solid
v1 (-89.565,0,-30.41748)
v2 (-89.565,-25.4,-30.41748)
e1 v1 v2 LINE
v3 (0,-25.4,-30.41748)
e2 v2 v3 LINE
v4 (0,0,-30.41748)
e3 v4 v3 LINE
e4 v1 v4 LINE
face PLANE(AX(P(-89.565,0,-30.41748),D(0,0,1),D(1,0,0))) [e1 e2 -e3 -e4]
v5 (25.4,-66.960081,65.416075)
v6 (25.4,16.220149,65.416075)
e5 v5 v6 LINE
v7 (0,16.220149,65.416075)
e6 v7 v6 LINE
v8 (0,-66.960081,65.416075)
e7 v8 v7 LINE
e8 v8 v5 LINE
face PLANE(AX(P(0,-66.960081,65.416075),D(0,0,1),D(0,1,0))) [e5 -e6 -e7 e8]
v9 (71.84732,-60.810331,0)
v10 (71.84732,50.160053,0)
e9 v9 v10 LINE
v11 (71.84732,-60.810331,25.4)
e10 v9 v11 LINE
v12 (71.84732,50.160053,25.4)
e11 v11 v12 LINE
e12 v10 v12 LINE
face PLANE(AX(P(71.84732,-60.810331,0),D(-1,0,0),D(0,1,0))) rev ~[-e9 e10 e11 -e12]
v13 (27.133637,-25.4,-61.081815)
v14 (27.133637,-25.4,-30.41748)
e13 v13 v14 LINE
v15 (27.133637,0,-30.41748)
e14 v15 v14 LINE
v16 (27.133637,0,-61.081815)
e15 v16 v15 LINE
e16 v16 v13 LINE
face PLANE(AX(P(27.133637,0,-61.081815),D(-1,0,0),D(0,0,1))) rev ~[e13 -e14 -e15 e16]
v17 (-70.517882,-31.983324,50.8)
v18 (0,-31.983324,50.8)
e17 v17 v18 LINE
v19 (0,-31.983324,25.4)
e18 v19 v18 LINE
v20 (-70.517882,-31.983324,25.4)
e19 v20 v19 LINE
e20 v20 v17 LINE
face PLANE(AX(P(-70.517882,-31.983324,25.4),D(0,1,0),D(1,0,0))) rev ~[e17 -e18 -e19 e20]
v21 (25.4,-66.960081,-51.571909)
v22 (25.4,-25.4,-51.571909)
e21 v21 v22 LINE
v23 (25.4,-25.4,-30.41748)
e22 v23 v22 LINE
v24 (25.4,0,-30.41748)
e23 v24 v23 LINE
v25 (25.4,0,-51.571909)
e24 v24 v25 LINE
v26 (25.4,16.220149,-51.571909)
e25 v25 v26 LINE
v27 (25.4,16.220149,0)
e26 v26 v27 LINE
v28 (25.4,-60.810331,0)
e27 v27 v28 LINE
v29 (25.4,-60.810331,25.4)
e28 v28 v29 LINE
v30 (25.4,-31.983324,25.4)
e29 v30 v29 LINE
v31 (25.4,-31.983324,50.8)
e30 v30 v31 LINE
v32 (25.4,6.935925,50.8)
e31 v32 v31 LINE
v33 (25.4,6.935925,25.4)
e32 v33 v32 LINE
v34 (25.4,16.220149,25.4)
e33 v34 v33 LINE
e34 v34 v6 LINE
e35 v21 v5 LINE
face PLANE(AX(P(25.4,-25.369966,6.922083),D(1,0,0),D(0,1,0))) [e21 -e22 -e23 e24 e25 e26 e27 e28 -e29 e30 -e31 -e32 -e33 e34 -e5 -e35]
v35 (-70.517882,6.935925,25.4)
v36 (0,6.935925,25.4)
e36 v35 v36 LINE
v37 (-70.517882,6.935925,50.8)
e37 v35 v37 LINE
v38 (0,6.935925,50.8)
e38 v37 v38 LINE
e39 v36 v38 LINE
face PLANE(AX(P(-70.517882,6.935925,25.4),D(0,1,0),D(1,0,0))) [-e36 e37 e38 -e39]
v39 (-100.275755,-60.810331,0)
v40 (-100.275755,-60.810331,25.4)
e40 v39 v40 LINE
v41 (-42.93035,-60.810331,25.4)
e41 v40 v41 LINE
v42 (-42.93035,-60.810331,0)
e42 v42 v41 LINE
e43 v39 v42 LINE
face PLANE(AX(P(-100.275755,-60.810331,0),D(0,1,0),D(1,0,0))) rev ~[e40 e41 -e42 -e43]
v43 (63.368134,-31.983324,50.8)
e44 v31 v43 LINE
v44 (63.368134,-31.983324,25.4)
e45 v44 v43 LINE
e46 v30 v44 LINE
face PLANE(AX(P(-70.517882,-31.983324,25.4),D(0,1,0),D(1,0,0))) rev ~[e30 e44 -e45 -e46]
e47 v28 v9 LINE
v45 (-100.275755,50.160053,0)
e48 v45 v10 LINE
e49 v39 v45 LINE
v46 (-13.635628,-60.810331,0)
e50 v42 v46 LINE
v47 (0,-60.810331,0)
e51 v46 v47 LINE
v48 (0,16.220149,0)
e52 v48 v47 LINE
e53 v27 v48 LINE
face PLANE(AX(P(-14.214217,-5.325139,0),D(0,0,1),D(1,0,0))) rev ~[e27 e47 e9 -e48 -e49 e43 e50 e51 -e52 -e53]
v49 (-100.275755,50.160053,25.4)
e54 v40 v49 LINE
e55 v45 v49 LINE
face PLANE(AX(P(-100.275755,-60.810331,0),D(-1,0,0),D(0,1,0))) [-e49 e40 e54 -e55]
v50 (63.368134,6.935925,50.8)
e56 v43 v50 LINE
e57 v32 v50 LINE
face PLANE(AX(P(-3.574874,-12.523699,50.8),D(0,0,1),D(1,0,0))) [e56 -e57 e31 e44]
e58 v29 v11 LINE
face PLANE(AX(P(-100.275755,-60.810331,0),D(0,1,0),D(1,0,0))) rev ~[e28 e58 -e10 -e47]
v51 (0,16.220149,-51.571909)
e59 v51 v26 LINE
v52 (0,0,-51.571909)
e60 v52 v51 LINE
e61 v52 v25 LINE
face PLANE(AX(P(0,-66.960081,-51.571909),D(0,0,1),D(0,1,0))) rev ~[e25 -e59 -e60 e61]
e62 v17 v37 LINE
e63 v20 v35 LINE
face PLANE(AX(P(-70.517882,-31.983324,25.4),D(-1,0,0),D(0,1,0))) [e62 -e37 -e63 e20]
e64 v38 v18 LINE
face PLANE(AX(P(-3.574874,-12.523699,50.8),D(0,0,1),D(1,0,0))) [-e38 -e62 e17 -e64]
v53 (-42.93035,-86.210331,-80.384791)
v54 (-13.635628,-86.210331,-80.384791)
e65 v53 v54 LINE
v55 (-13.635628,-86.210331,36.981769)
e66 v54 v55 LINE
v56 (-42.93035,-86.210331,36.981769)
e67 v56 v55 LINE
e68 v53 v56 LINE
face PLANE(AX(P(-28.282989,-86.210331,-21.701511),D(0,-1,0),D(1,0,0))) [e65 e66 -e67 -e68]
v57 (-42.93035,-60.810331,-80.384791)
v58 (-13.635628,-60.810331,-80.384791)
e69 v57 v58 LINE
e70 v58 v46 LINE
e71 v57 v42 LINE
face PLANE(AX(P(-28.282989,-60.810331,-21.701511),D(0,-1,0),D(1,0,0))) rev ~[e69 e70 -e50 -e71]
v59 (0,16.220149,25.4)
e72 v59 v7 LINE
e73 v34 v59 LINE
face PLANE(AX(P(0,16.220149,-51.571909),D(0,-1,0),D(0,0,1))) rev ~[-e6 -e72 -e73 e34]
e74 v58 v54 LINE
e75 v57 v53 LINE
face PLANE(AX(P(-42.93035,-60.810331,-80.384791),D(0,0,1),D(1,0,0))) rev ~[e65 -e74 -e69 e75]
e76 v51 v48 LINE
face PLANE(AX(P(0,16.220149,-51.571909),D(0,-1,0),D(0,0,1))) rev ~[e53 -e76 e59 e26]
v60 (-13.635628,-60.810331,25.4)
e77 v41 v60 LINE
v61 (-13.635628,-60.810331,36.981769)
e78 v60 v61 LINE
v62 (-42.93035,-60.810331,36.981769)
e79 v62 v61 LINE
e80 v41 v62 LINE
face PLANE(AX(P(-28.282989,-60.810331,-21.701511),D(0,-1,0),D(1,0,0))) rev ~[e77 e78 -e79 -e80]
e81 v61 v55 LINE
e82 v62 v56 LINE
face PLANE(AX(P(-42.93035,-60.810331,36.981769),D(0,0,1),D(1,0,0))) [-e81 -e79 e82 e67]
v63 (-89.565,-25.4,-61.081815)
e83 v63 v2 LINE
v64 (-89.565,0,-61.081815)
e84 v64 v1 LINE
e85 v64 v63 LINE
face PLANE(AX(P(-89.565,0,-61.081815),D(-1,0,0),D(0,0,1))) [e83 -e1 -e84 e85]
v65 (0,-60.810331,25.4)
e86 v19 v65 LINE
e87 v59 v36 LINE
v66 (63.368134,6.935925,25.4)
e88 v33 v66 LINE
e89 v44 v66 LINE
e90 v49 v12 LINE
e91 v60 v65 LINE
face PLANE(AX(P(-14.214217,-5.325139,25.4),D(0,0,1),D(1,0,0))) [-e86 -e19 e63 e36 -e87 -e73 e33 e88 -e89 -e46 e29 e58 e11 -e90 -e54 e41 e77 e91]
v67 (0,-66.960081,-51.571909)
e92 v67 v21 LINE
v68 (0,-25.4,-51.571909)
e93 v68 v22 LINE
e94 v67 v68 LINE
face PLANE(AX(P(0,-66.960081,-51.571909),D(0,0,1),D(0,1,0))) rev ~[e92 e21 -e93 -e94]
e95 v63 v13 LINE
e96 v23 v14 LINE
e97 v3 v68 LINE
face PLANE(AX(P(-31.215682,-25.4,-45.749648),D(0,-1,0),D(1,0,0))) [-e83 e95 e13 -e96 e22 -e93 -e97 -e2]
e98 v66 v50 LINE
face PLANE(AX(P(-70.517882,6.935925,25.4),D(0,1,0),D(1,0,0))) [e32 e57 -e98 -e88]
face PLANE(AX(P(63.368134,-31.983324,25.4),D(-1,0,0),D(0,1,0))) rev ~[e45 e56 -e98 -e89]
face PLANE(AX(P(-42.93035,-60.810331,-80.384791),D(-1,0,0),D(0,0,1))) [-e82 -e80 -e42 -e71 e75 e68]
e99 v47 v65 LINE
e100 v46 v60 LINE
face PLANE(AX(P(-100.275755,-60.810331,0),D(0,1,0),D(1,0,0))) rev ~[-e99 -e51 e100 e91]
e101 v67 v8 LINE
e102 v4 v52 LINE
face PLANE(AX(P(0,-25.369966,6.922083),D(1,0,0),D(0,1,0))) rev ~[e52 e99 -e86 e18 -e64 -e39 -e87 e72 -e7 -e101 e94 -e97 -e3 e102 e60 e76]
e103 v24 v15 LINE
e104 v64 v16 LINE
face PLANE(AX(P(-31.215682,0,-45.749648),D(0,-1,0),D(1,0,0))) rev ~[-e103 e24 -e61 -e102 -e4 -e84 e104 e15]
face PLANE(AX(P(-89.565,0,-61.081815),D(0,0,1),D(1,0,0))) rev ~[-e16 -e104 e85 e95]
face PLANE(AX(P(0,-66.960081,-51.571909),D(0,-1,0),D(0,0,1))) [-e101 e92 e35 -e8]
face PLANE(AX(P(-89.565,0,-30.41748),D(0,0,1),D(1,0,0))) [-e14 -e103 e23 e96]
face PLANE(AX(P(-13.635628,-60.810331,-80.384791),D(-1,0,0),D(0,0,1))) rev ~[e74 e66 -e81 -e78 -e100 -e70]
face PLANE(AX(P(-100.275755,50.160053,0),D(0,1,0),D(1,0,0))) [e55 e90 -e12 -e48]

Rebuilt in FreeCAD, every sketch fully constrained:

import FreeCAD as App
import Part
import Sketcher

V = App.Vector
Q = App.Units.Quantity

doc = App.newDocument("Part")
body = doc.addObject("PartDesign::Body", "Body")

# Sketch on YZ plane
sketch1 = doc.addObject("Sketcher::SketchObject", "Sketch")
body.addObject(sketch1)
sketch1.AttachmentSupport = (doc.YZ_Plane, [""])
sketch1.MapMode = "FlatFace"
sketch1.addGeometry([
    Part.LineSegment(V(-66.960081, 65.416075, 0), V(-66.960081, -51.571909, 0)),
    Part.LineSegment(V(-66.960081, -51.571909, 0), V(16.220149, -51.571909, 0)),
    Part.LineSegment(V(16.220149, -51.571909, 0), V(16.220149, 65.416075, 0)),
    Part.LineSegment(V(16.220149, 65.416075, 0), V(-66.960081, 65.416075, 0)),
], False)
sketch1.addConstraint([
    Sketcher.Constraint("Coincident", 0, 2, 1, 1),
    Sketcher.Constraint("Coincident", 1, 2, 2, 1),
    Sketcher.Constraint("Coincident", 2, 2, 3, 1),
    Sketcher.Constraint("Coincident", 3, 2, 0, 1),
    Sketcher.Constraint("Vertical", 0),
    Sketcher.Constraint("Horizontal", 1),
    Sketcher.Constraint("Vertical", 2),
    Sketcher.Constraint("Horizontal", 3),
    Sketcher.Constraint("DistanceX", 1, 1, 1, 2, 83.18023),
    Sketcher.Constraint("DistanceY", 0, 2, 0, 1, 116.987984),
    Sketcher.Constraint("DistanceX", 0, 2, -1, 1, 66.960081),
    Sketcher.Constraint("DistanceY", 0, 2, -1, 1, 51.571909),
])
pad1 = doc.addObject("PartDesign::Pad", "Pad")
body.addObject(pad1)
pad1.Profile = sketch1
pad1.Length = Q("1 in")

# Sketch on XY plane
sketch2 = doc.addObject("Sketcher::SketchObject", "Sketch001")
body.addObject(sketch2)
sketch2.AttachmentSupport = (doc.XY_Plane, [""])
sketch2.MapMode = "FlatFace"
sketch2.addGeometry([
    Part.LineSegment(V(-100.275755, 50.160053, 0), V(-100.275755, -60.810331, 0)),
    Part.LineSegment(V(-100.275755, -60.810331, 0), V(71.84732, -60.810331, 0)),
    Part.LineSegment(V(71.84732, -60.810331, 0), V(71.84732, 50.160053, 0)),
    Part.LineSegment(V(71.84732, 50.160053, 0), V(-100.275755, 50.160053, 0)),
], False)
sketch2.addConstraint([
    Sketcher.Constraint("Coincident", 0, 2, 1, 1),
    Sketcher.Constraint("Coincident", 1, 2, 2, 1),
    Sketcher.Constraint("Coincident", 2, 2, 3, 1),
    Sketcher.Constraint("Coincident", 3, 2, 0, 1),
    Sketcher.Constraint("Vertical", 0),
    Sketcher.Constraint("Horizontal", 1),
    Sketcher.Constraint("Vertical", 2),
    Sketcher.Constraint("Horizontal", 3),
    Sketcher.Constraint("DistanceX", 1, 1, 1, 2, 172.123075),
    Sketcher.Constraint("DistanceY", 0, 2, 0, 1, 110.970385),
    Sketcher.Constraint("DistanceY", 0, 2, -1, 1, 60.810331),
    Sketcher.Constraint("DistanceX", -1, 1, 1, 2, 71.84732),
])
pad2 = doc.addObject("PartDesign::Pad", "Pad001")
body.addObject(pad2)
pad2.Profile = sketch2
pad2.Length = Q("1 in")

# Sketch on XZ plane
sketch3 = doc.addObject("Sketcher::SketchObject", "Sketch002")
body.addObject(sketch3)
sketch3.AttachmentSupport = (doc.XZ_Plane, [""])
sketch3.MapMode = "FlatFace"
sketch3.addGeometry([
    Part.LineSegment(V(-89.565, -30.41748, 0), V(-89.565, -61.081815, 0)),
    Part.LineSegment(V(-89.565, -61.081815, 0), V(27.133637, -61.081815, 0)),
    Part.LineSegment(V(27.133637, -61.081815, 0), V(27.133637, -30.41748, 0)),
    Part.LineSegment(V(27.133637, -30.41748, 0), V(-89.565, -30.41748, 0)),
], False)
sketch3.addConstraint([
    Sketcher.Constraint("Coincident", 0, 2, 1, 1),
    Sketcher.Constraint("Coincident", 1, 2, 2, 1),
    Sketcher.Constraint("Coincident", 2, 2, 3, 1),
    Sketcher.Constraint("Coincident", 3, 2, 0, 1),
    Sketcher.Constraint("Vertical", 0),
    Sketcher.Constraint("Horizontal", 1),
    Sketcher.Constraint("Vertical", 2),
    Sketcher.Constraint("Horizontal", 3),
    Sketcher.Constraint("DistanceX", 0, 2, -1, 1, 89.565),
    Sketcher.Constraint("DistanceX", 1, 1, 1, 2, 116.698637),
    Sketcher.Constraint("DistanceY", 0, 2, 0, 1, 30.664335),
    Sketcher.Constraint("DistanceY", 2, 2, -1, 1, 30.41748),
])
pad3 = doc.addObject("PartDesign::Pad", "Pad002")
body.addObject(pad3)
pad3.Profile = sketch3
pad3.Length = Q("1 in")

# Sketch on XY plane
sketch4 = doc.addObject("Sketcher::SketchObject", "Sketch003")
body.addObject(sketch4)
sketch4.AttachmentSupport = (doc.XY_Plane, [""])
sketch4.MapMode = "FlatFace"
sketch4.AttachmentOffset = App.Placement(V(0, 0, 1 * 25.4), App.Rotation())
sketch4.addGeometry([
    Part.LineSegment(V(-70.517882, 6.935925, 0), V(-70.517882, -31.983324, 0)),
    Part.LineSegment(V(-70.517882, -31.983324, 0), V(63.368134, -31.983324, 0)),
    Part.LineSegment(V(63.368134, -31.983324, 0), V(63.368134, 6.935925, 0)),
    Part.LineSegment(V(63.368134, 6.935925, 0), V(-70.517882, 6.935925, 0)),
], False)
sketch4.addConstraint([
    Sketcher.Constraint("Coincident", 0, 2, 1, 1),
    Sketcher.Constraint("Coincident", 1, 2, 2, 1),
    Sketcher.Constraint("Coincident", 2, 2, 3, 1),
    Sketcher.Constraint("Coincident", 3, 2, 0, 1),
    Sketcher.Constraint("Vertical", 0),
    Sketcher.Constraint("Horizontal", 1),
    Sketcher.Constraint("Vertical", 2),
    Sketcher.Constraint("Horizontal", 3),
    Sketcher.Constraint("DistanceY", 0, 2, 0, 1, 38.919249),
    Sketcher.Constraint("DistanceX", 1, 1, 1, 2, 133.886017),
    Sketcher.Constraint("DistanceX", 0, 2, -1, 1, 70.517882),
    Sketcher.Constraint("DistanceY", 0, 2, -1, 1, 31.983324),
])
pad4 = doc.addObject("PartDesign::Pad", "Pad003")
body.addObject(pad4)
pad4.Profile = sketch4
pad4.Length = Q("1 in")

# Sketch on XZ plane
sketch5 = doc.addObject("Sketcher::SketchObject", "Sketch004")
body.addObject(sketch5)
sketch5.AttachmentSupport = (doc.XZ_Plane, [""])
sketch5.MapMode = "FlatFace"
sketch5.AttachmentOffset = App.Placement(V(0, 0, 60.810331), App.Rotation())
sketch5.addGeometry([
    Part.LineSegment(V(-42.93035, 36.981769, 0), V(-42.93035, -80.384791, 0)),
    Part.LineSegment(V(-42.93035, -80.384791, 0), V(-13.635628, -80.384791, 0)),
    Part.LineSegment(V(-13.635628, -80.384791, 0), V(-13.635628, 36.981769, 0)),
    Part.LineSegment(V(-13.635628, 36.981769, 0), V(-42.93035, 36.981769, 0)),
], False)
sketch5.addConstraint([
    Sketcher.Constraint("Coincident", 0, 2, 1, 1),
    Sketcher.Constraint("Coincident", 1, 2, 2, 1),
    Sketcher.Constraint("Coincident", 2, 2, 3, 1),
    Sketcher.Constraint("Coincident", 3, 2, 0, 1),
    Sketcher.Constraint("Vertical", 0),
    Sketcher.Constraint("Horizontal", 1),
    Sketcher.Constraint("Vertical", 2),
    Sketcher.Constraint("Horizontal", 3),
    Sketcher.Constraint("DistanceX", 1, 1, 1, 2, 29.294722),
    Sketcher.Constraint("DistanceY", 0, 2, 0, 1, 117.36656),
    Sketcher.Constraint("DistanceX", 0, 2, -1, 1, 42.93035),
    Sketcher.Constraint("DistanceY", 0, 2, -1, 1, 80.384791),
])
pad5 = doc.addObject("PartDesign::Pad", "Pad004")
body.addObject(pad5)
pad5.Profile = sketch5
pad5.Length = Q("1 in")

doc.recompute()
